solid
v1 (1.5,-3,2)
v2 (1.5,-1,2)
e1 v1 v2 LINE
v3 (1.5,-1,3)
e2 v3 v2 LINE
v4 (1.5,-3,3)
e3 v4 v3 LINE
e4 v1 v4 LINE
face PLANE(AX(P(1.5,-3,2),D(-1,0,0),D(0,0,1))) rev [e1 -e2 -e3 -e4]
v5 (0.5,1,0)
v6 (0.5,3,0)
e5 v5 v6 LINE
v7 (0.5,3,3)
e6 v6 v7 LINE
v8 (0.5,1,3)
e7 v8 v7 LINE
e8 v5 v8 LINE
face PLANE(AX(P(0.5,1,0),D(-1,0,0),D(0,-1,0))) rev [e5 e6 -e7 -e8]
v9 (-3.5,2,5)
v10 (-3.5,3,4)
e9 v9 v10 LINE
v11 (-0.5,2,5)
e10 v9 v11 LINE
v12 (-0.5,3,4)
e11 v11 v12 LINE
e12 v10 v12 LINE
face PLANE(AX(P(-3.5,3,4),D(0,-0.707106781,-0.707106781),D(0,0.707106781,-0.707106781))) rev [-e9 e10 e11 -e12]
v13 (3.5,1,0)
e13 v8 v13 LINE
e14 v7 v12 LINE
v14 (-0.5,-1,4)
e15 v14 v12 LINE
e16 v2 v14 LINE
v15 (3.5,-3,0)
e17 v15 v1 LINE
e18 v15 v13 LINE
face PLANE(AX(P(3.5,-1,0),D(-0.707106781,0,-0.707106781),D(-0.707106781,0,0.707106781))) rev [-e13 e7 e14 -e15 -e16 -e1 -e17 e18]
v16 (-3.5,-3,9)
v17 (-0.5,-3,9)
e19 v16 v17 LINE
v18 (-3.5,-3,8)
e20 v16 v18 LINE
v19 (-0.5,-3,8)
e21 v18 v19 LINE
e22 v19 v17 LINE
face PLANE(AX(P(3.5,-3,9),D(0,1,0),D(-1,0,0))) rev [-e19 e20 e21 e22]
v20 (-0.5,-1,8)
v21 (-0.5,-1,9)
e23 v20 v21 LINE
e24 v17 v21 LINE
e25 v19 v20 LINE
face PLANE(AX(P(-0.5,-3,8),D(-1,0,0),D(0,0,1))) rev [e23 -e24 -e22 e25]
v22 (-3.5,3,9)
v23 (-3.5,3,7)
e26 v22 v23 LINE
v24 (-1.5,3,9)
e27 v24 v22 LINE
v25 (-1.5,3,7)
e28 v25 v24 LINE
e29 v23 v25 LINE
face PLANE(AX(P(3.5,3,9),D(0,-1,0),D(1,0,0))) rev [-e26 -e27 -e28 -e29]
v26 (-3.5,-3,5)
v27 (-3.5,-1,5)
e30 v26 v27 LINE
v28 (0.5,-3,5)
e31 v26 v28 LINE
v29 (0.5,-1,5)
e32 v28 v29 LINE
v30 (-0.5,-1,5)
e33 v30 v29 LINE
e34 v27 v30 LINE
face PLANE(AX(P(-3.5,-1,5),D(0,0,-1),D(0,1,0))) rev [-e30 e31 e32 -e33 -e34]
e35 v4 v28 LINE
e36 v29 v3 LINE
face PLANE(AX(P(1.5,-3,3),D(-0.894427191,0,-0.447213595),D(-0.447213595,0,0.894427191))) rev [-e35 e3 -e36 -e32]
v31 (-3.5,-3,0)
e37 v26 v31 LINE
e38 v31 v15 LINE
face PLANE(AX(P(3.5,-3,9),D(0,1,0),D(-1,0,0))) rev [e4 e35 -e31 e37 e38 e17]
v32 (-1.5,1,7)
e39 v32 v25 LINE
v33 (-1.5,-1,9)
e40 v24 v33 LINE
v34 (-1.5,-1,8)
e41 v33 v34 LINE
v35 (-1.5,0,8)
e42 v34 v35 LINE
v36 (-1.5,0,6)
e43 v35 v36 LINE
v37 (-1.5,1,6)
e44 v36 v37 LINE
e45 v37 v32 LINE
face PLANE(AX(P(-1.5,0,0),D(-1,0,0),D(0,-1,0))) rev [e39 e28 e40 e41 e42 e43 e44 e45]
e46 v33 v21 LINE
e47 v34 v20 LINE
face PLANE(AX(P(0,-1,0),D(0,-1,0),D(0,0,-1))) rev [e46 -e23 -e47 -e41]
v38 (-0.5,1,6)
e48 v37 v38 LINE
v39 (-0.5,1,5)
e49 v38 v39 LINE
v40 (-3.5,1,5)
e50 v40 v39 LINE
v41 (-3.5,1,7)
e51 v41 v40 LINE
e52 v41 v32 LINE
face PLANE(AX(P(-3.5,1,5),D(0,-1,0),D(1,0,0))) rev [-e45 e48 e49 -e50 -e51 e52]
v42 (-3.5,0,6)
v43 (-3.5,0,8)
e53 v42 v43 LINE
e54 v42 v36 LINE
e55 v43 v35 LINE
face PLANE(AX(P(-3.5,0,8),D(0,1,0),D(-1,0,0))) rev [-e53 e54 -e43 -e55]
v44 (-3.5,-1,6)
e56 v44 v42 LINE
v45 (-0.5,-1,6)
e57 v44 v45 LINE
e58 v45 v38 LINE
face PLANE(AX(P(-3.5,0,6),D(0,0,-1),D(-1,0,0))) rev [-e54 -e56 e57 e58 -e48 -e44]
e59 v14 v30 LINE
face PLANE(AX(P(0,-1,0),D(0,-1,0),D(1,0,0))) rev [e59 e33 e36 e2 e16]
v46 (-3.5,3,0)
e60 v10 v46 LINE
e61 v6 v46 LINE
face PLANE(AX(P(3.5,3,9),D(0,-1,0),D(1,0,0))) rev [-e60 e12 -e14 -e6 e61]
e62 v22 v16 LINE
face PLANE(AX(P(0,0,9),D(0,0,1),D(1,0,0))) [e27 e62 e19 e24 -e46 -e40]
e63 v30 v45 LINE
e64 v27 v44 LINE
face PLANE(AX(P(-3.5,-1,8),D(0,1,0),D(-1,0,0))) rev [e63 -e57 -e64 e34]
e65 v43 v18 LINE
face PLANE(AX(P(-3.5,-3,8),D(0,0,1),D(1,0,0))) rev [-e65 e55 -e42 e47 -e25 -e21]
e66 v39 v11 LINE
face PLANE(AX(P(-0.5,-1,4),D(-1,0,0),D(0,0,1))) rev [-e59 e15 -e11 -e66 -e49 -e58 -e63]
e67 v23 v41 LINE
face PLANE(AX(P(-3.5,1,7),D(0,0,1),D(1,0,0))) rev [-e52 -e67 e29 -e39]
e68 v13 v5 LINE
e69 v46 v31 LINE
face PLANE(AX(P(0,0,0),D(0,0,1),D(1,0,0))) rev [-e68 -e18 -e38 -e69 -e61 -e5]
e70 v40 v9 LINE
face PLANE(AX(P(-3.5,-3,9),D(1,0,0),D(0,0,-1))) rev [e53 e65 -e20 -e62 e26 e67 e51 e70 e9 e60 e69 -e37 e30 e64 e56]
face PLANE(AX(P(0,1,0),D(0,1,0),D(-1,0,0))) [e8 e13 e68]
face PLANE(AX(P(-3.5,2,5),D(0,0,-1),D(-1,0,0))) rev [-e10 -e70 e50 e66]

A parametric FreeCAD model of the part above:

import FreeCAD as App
import Part
import Sketcher
from FreeCAD import Vector
Q = App.Units.Quantity


def add_polygon(sketch, points):
    """Adds a closed chain of lines whose ends are joined by coincident constraints."""
    first, n = sketch.GeometryCount, len(points)
    for a, b in zip(points, points[1:] + points[:1]):
        sketch.addGeometry(Part.LineSegment(App.Vector(*a, 0), App.Vector(*b, 0)), False)
    for i in range(n):
        sketch.addConstraint(Sketcher.Constraint("Coincident", first + i, 2, first + (i + 1) % n, 1))

doc = App.newDocument("Part")
body = doc.addObject("PartDesign::Body", "Body")

# Sketch on XY plane
sketch1 = body.newObject("Sketcher::SketchObject", "Sketch")
sketch1.AttachmentSupport = (doc.getObject("XY_Plane"), [""])
sketch1.MapMode = "FlatFace"
add_polygon(sketch1, [(-4, 3), (-4, -3), (4, -3), (4, 3)])  # lines 0-3
sketch1.addConstraint([
    Sketcher.Constraint("Vertical", 0),
    Sketcher.Constraint("Horizontal", 1),
    Sketcher.Constraint("Vertical", 2),
    Sketcher.Constraint("Horizontal", 3),
    Sketcher.Constraint("Symmetric", 0, 2, 2, 2, -1, 1),
    Sketcher.Constraint("DistanceX", 1, 1, 1, 2, Q("7 mm")),
    Sketcher.Constraint("DistanceY", 0, 2, 0, 1, Q("6 mm")),
])
pad1 = body.newObject("PartDesign::Pad", "Pad")
pad1.Profile = sketch1
pad1.Length = 9

# Sketch on XZ plane
sketch2 = body.newObject("Sketcher::SketchObject", "Sketch001")
sketch2.AttachmentSupport = (doc.getObject("XZ_Plane"), [""])
sketch2.MapMode = "FlatFace"
sketch2.AttachmentOffset = App.Placement(Vector(0, 0, -3), App.Rotation())
add_polygon(sketch2, [(3.5, 0), (0.5, 0), (0.5, 3)])  # lines 0-2
sketch2.addConstraint([
    Sketcher.Constraint("Horizontal", 0),
    Sketcher.Constraint("Vertical", 1),
    Sketcher.Constraint("PointOnObject", 0, 2, -1),
    Sketcher.Constraint("Equal", 0, 1),
    Sketcher.Constraint("DistanceX", 0, 2, 0, 1, Q("3 mm")),
    Sketcher.Constraint("DistanceX", -1, 1, 0, 2, Q("0.5 mm")),
])
pocket1 = body.newObject("PartDesign::Pocket", "Pocket")
pocket1.Profile = sketch2
pocket1.Length = 2
pocket1.Reversed = True

# Sketch on XZ plane
sketch3 = body.newObject("Sketcher::SketchObject", "Sketch002")
sketch3.AttachmentSupport = (doc.getObject("XZ_Plane"), [""])
sketch3.MapMode = "FlatFace"
sketch3.AttachmentOffset = App.Placement(Vector(0, 0, -3), App.Rotation())
add_polygon(sketch3, [(3.5, 0), (0.5, 3), (0.5, 9), (3.5, 9)])  # lines 0-3
sketch3.addConstraint([
    Sketcher.Constraint("Vertical", 1),
    Sketcher.Constraint("Horizontal", 2),
    Sketcher.Constraint("Vertical", 3),
    Sketcher.Constraint("PointOnObject", 3, 2, -1),
    Sketcher.Constraint("DistanceX", 2, 1, 2, 2, Q("3 mm")),
    Sketcher.Constraint("DistanceY", 1, 1, 1, 2, Q("6 mm")),
    Sketcher.Constraint("DistanceY", 3, 2, 3, 1, Q("9 mm")),
    Sketcher.Constraint("DistanceX", -1, 1, 0, 2, Q("0.5 mm")),
])
pocket2 = body.newObject("PartDesign::Pocket", "Pocket001")
pocket2.Profile = sketch3
pocket2.Length = 4
pocket2.Reversed = True

# Sketch on XZ plane
sketch4 = body.newObject("Sketcher::SketchObject", "Sketch003")
sketch4.AttachmentSupport = (doc.getObject("XZ_Plane"), [""])
sketch4.MapMode = "FlatFace"
sketch4.AttachmentOffset = App.Placement(Vector(0, 0, -3), App.Rotation())
add_polygon(sketch4, [(3.5, 0), (1.5, 2), (1.5, 3), (0.5, 5), (0.5, 9), (3.5, 9)])  # lines 0-5
sketch4.addConstraint([
    Sketcher.Constraint("Vertical", 1),
    Sketcher.Constraint("Vertical", 3),
    Sketcher.Constraint("Horizontal", 4),
    Sketcher.Constraint("Vertical", 5),
    Sketcher.Constraint("PointOnObject", 5, 2, -1),
    Sketcher.Constraint("DistanceX", 4, 1, 4, 2, Q("3 mm")),
    Sketcher.Constraint("DistanceY", 1, 1, 1, 2, Q("1 mm")),
    Sketcher.Constraint("DistanceY", 3, 1, 3, 2, Q("4 mm")),
    Sketcher.Constraint("DistanceY", 5, 2, 5, 1, Q("9 mm")),
    Sketcher.Constraint("Angle", 0, Q("135 deg")),
    Sketcher.Constraint("DistanceY", -1, 1, 0, 2, Q("2 mm")),
    Sketcher.Constraint("DistanceX", -1, 1, 0, 2, Q("1.5 mm")),
])
pocket3 = body.newObject("PartDesign::Pocket", "Pocket002")
pocket3.Profile = sketch4
pocket3.Type = "ThroughAll"
pocket3.Reversed = True

# Sketch on YZ plane
sketch5 = body.newObject("Sketcher::SketchObject", "Sketch004")
sketch5.AttachmentSupport = (doc.getObject("YZ_Plane"), [""])
sketch5.MapMode = "FlatFace"
sketch5.AttachmentOffset = App.Placement(Vector(0, 0, 0.5), App.Rotation())
add_polygon(sketch5, [(-1, 8), (-3, 8), (-3, 5), (-1, 5)])  # lines 0-3
sketch5.addConstraint([
    Sketcher.Constraint("Horizontal", 0),
    Sketcher.Constraint("Vertical", 1),
    Sketcher.Constraint("Horizontal", 2),
    Sketcher.Constraint("Vertical", 3),
    Sketcher.Constraint("DistanceX", 0, 2, 0, 1, Q("2 mm")),
    Sketcher.Constraint("DistanceY", 1, 2, 1, 1, Q("3 mm")),
    Sketcher.Constraint("DistanceX", 0, 2, -1, 1, Q("3 mm")),
    Sketcher.Constraint("DistanceY", -1, 1, 0, 2, Q("8 mm")),
])
pocket4 = body.newObject("PartDesign::Pocket", "Pocket003")
pocket4.Profile = sketch5
pocket4.Type = "ThroughAll"

# Sketch on XZ plane
sketch6 = body.newObject("Sketcher::SketchObject", "Sketch005")
sketch6.AttachmentSupport = (doc.getObject("XZ_Plane"), [""])
sketch6.MapMode = "FlatFace"
sketch6.AttachmentOffset = App.Placement(Vector(0, 0, -3), App.Rotation())
add_polygon(sketch6, [(0.5, 3), (-0.5, 4), (-0.5, 9), (0.5, 9)])  # lines 0-3
sketch6.addConstraint([
    Sketcher.Constraint("Vertical", 1),
    Sketcher.Constraint("Horizontal", 2),
    Sketcher.Constraint("Vertical", 3),
    Sketcher.Constraint("DistanceX", 2, 1, 2, 2, Q("1 mm")),
    Sketcher.Constraint("DistanceY", 1, 1, 1, 2, Q("5 mm")),
    Sketcher.Constraint("DistanceY", 3, 2, 3, 1, Q("6 mm")),
    Sketcher.Constraint("DistanceY", -1, 1, 0, 2, Q("4 mm")),
    Sketcher.Constraint("DistanceX", 0, 2, -1, 1, Q("0.5 mm")),
])
pocket5 = body.newObject("PartDesign::Pocket", "Pocket004")
pocket5.Profile = sketch6
pocket5.Length = 4
pocket5.Reversed = True

# Sketch on YZ plane
sketch7 = body.newObject("Sketcher::SketchObject", "Sketch006")
sketch7.AttachmentSupport = (doc.getObject("YZ_Plane"), [""])
sketch7.MapMode = "FlatFace"
sketch7.AttachmentOffset = App.Placement(Vector(0, 0, -0.5), App.Rotation())
add_polygon(sketch7, [(2, 5), (3, 4), (3, 7), (1, 7), (1, 5)])  # lines 0-4
sketch7.addConstraint([
    Sketcher.Constraint("Vertical", 1),
    Sketcher.Constraint("Horizontal", 2),
    Sketcher.Constraint("Vertical", 3),
    Sketcher.Constraint("Horizontal", 4),
    Sketcher.Constraint("Equal", 2, 3),
    Sketcher.Constraint("DistanceX", 2, 2, 2, 1, Q("2 mm")),
    Sketcher.Constraint("DistanceX", 4, 1, 4, 2, Q("1 mm")),
    Sketcher.Constraint("DistanceY", 1, 1, 1, 2, Q("3 mm")),
    Sketcher.Constraint("DistanceX", -1, 1, 0, 2, Q("3 mm")),
    Sketcher.Constraint("DistanceY", -1, 1, 0, 2, Q("4 mm")),
])
pocket6 = body.newObject("PartDesign::Pocket", "Pocket005")
pocket6.Profile = sketch7
pocket6.Type = "ThroughAll"

# Sketch on YZ plane
sketch8 = body.newObject("Sketcher::SketchObject", "Sketch007")
sketch8.AttachmentSupport = (doc.getObject("YZ_Plane"), [""])
sketch8.MapMode = "FlatFace"
sketch8.AttachmentOffset = App.Placement(Vector(0, 0, -0.5), App.Rotation())
add_polygon(sketch8, [(0, 8), (-1, 8), (-1, 6), (0, 6)])  # lines 0-3
sketch8.addConstraint([
    Sketcher.Constraint("Horizontal", 0),
    Sketcher.Constraint("Vertical", 1),
    Sketcher.Constraint("Horizontal", 2),
    Sketcher.Constraint("Vertical", 3),
    Sketcher.Constraint("PointOnObject", 2, 2, -2),
    Sketcher.Constraint("DistanceX", 0, 2, 0, 1, Q("1 mm")),
    Sketcher.Constraint("DistanceY", 1, 2, 1, 1, Q("2 mm")),
    Sketcher.Constraint("DistanceY", -1, 1, 0, 2, Q("8 mm")),
])
pocket7 = body.newObject("PartDesign::Pocket", "Pocket006")
pocket7.Profile = sketch8
pocket7.Type = "ThroughAll"

# Sketch on YZ plane
sketch9 = body.newObject("Sketcher::SketchObject", "Sketch008")
sketch9.AttachmentSupport = (doc.getObject("YZ_Plane"), [""])
sketch9.MapMode = "FlatFace"
sketch9.AttachmentOffset = App.Placement(Vector(0, 0, -0.5), App.Rotation())
add_polygon(sketch9, [(3, 7), (3, 9), (-1, 9), (-1, 8), (0, 8), (0, 6), (1, 6), (1, 7)])  # lines 0-7
sketch9.addConstraint([
    Sketcher.Constraint("Vertical", 0),
    Sketcher.Constraint("Horizontal", 1),
    Sketcher.Constraint("Vertical", 2),
    Sketcher.Constraint("Horizontal", 3),
    Sketcher.Constraint("Vertical", 4),
    Sketcher.Constraint("Horizontal", 5),
    Sketcher.Constraint("Vertical", 6),
    Sketcher.Constraint("Horizontal", 7),
    Sketcher.Constraint("PointOnObject", 3, 2, -2),
    Sketcher.Constraint("Equal", 3, 5),
    Sketcher.Constraint("Equal", 7, 0),
    Sketcher.Constraint("Equal", 5, 2),
    Sketcher.Constraint("Equal", 0, 4),
    Sketcher.Constraint("DistanceX", 1, 2, 1, 1, Q("4 mm")),
    Sketcher.Constraint("DistanceX", 3, 1, 3, 2, Q("1 mm")),
    Sketcher.Constraint("DistanceY", -1, 1, 0, 2, Q("9 mm")),
])
pocket8 = body.newObject("PartDesign::Pocket", "Pocket007")
pocket8.Profile = sketch9
pocket8.Length = 1

# Sketch on XZ plane
sketch10 = body.newObject("Sketcher::SketchObject", "Sketch009")
sketch10.AttachmentSupport = (doc.getObject("XZ_Plane"), [""])
sketch10.MapMode = "FlatFace"
sketch10.AttachmentOffset = App.Placement(Vector(0, 0, 1), App.Rotation())
add_polygon(sketch10, [(-0.5, 8), (-0.5, 9), (0.5, 9), (0.5, 8)])  # lines 0-3
sketch10.addConstraint([
    Sketcher.Constraint("Vertical", 0),
    Sketcher.Constraint("Horizontal", 1),
    Sketcher.Constraint("Vertical", 2),
    Sketcher.Constraint("Horizontal", 3),
    Sketcher.Constraint("Equal", 3, 0),
    Sketcher.Constraint("DistanceX", 1, 1, 1, 2, Q("1 mm")),
    Sketcher.Constraint("DistanceY", -1, 1, 0, 2, Q("9 mm")),
    Sketcher.Constraint("DistanceX", 0, 2, -1, 1, Q("0.5 mm")),
])
pocket9 = body.newObject("PartDesign::Pocket", "Pocket008")
pocket9.Profile = sketch10
pocket9.Type = "ThroughAll"
pocket9.Reversed = True

doc.recompute()
